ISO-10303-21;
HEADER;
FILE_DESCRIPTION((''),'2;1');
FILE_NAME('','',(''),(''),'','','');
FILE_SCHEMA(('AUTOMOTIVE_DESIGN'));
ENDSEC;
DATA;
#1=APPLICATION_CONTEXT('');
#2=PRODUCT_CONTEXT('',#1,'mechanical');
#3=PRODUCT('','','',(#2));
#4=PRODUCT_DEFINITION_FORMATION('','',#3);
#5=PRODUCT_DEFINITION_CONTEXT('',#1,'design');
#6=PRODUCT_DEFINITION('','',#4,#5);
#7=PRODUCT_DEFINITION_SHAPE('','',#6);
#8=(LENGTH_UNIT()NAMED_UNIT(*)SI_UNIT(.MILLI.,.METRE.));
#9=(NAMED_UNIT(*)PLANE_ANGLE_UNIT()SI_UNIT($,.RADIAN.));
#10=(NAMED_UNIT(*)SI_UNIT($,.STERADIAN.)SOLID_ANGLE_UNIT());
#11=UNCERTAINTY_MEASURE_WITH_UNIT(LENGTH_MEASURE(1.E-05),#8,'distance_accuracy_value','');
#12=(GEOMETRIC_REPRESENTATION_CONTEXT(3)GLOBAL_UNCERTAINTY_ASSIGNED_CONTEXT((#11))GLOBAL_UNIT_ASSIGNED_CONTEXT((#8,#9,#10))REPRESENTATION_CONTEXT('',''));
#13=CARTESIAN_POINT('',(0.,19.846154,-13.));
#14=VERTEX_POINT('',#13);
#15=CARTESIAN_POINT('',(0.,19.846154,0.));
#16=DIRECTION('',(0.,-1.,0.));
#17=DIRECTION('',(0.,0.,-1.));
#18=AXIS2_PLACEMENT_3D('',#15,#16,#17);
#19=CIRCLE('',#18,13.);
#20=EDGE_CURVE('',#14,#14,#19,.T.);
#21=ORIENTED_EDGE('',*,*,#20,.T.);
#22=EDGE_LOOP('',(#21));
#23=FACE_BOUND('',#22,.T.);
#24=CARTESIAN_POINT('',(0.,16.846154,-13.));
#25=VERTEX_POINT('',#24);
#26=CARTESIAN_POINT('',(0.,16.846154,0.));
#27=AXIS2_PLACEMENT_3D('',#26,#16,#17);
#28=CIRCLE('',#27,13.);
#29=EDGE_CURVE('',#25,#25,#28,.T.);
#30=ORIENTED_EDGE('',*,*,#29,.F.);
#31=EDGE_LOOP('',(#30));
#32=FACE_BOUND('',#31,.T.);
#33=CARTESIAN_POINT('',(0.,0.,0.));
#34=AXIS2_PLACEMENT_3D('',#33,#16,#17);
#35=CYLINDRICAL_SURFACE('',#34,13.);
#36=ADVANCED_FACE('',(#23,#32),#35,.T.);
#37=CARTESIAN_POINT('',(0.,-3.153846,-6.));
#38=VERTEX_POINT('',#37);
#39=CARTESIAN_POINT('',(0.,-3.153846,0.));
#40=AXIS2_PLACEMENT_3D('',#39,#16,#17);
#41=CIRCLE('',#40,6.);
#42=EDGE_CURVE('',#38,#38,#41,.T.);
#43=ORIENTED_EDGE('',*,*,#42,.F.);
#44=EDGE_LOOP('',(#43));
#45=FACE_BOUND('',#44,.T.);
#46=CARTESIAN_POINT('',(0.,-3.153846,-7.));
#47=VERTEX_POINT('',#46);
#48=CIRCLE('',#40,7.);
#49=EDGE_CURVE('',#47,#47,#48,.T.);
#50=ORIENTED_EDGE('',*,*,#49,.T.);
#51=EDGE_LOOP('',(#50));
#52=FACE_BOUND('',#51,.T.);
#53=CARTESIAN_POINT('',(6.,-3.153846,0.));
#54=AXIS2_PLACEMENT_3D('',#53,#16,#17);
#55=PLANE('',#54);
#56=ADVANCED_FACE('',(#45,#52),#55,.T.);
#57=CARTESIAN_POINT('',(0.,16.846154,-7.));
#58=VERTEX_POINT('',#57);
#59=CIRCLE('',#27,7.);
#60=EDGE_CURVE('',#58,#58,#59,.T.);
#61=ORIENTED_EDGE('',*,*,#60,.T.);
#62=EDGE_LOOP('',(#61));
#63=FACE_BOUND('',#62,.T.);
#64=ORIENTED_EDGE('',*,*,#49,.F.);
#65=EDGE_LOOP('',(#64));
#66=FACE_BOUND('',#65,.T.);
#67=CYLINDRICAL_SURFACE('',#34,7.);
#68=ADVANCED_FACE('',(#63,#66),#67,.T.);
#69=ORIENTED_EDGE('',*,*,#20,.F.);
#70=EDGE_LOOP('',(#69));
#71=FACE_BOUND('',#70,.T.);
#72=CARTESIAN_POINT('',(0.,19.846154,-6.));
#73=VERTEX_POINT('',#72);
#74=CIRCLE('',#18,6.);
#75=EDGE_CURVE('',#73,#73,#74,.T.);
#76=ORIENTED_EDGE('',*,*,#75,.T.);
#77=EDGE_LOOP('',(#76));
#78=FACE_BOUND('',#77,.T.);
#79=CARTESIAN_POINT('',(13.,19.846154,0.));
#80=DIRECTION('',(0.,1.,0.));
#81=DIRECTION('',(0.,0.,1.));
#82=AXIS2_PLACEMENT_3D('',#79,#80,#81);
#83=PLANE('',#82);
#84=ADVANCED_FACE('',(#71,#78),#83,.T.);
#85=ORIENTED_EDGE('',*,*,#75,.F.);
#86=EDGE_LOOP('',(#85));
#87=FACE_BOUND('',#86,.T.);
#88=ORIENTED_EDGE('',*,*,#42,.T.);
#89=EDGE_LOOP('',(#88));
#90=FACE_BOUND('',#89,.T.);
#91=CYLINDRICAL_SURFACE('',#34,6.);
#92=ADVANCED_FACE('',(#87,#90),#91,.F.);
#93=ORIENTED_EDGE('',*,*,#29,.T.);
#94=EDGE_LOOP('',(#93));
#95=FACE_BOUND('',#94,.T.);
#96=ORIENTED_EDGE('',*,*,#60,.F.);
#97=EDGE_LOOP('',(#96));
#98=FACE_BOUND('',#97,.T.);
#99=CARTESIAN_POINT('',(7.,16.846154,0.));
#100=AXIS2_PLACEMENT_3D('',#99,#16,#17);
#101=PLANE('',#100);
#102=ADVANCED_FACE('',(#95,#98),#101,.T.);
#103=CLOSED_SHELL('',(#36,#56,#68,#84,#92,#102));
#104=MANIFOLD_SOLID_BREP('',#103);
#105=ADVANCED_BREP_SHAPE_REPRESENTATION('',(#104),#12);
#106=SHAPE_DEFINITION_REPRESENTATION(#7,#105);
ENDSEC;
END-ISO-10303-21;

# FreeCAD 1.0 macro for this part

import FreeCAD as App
import Part
import Sketcher
Q = App.Units.Quantity


def add_polygon(sketch, points):
    """Adds a closed chain of lines whose ends are joined by coincident constraints."""
    first, n = sketch.GeometryCount, len(points)
    for a, b in zip(points, points[1:] + points[:1]):
        sketch.addGeometry(Part.LineSegment(App.Vector(*a, 0), App.Vector(*b, 0)), False)
    for i in range(n):
        sketch.addConstraint(Sketcher.Constraint("Coincident", first + i, 2, first + (i + 1) % n, 1))

doc = App.newDocument("Part")
body = doc.addObject("PartDesign::Body", "Body")

# Sketch on XY plane
sketch1 = body.newObject("Sketcher::SketchObject", "Sketch")
sketch1.AttachmentSupport = (doc.getObject("XY_Plane"), [""])
sketch1.MapMode = "FlatFace"
add_polygon(sketch1, [(6, -3.2), (7, -3.2), (7, 16.8), (13, 16.8), (13, 19.8), (6, 19.8)])  # lines 0-5
sketch1.addConstraint([
    Sketcher.Constraint("Horizontal", 0),
    Sketcher.Constraint("Vertical", 1),
    Sketcher.Constraint("Horizontal", 2),
    Sketcher.Constraint("Vertical", 3),
    Sketcher.Constraint("Horizontal", 4),
    Sketcher.Constraint("Vertical", 5),
    Sketcher.Constraint("DistanceX", 0, 1, 0, 2, Q("1 mm")),
    Sketcher.Constraint("DistanceX", 2, 1, 2, 2, Q("6 mm")),
    Sketcher.Constraint("DistanceY", 1, 1, 1, 2, Q("20 mm")),
    Sketcher.Constraint("DistanceY", 3, 1, 3, 2, Q("3 mm")),
    Sketcher.Constraint("DistanceX", -1, 1, 0, 2, Q("7 mm")),
    Sketcher.Constraint("DistanceY", 0, 2, -1, 1, Q("3.153846 mm")),
])
revolution = body.newObject("PartDesign::Revolution", "Revolution")
revolution.Profile = sketch1
revolution.ReferenceAxis = (sketch1, ["V_Axis"])
revolution.Angle = 360

doc.recompute()
